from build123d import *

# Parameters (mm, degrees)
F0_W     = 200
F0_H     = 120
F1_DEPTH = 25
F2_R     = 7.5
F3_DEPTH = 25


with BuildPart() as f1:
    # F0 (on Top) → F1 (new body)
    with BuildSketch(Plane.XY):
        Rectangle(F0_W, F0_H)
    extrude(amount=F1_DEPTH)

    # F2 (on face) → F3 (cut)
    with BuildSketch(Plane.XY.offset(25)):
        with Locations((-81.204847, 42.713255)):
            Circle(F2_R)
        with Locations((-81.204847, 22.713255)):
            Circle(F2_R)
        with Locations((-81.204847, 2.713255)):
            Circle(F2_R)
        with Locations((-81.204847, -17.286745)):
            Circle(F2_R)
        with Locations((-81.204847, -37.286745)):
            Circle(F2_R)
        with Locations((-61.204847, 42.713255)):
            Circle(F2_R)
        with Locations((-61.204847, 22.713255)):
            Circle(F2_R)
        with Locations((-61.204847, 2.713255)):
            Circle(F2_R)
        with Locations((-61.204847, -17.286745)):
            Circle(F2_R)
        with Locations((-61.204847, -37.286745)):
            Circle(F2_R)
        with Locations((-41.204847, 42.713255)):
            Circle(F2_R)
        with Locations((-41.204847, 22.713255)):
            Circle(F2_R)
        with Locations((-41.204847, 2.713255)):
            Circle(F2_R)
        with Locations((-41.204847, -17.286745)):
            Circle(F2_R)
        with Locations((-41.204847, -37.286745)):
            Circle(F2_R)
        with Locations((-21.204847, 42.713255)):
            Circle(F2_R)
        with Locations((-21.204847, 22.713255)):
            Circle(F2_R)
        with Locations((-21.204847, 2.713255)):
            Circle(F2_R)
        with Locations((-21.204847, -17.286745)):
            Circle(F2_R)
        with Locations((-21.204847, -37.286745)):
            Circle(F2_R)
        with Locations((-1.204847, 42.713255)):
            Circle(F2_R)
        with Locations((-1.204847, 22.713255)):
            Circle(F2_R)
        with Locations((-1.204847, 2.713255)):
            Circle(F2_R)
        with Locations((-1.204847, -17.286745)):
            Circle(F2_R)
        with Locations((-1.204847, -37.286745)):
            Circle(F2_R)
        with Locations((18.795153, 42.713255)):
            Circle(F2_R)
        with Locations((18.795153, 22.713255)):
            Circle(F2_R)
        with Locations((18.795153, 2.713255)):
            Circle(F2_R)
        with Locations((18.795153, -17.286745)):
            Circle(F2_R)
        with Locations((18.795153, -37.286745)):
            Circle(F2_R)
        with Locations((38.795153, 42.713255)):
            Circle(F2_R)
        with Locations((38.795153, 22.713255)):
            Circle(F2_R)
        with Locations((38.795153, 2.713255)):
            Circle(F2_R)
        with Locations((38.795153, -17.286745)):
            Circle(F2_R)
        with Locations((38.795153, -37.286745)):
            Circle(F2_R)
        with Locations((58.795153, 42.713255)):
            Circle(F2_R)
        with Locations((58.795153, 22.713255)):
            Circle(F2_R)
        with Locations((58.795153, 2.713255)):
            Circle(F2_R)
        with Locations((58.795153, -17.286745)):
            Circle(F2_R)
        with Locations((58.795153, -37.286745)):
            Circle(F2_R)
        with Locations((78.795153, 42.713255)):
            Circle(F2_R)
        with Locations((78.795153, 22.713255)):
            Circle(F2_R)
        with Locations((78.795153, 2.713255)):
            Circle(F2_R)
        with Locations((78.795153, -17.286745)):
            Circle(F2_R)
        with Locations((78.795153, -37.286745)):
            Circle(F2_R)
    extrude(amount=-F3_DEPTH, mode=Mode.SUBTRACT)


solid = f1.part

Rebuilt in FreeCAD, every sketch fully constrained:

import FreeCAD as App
import Part
import Sketcher
from FreeCAD import Vector


def add_polygon(sketch, points):
    """Adds a closed chain of lines whose ends are joined by coincident constraints."""
    first, n = sketch.GeometryCount, len(points)
    for a, b in zip(points, points[1:] + points[:1]):
        sketch.addGeometry(Part.LineSegment(App.Vector(*a, 0), App.Vector(*b, 0)), False)
    for i in range(n):
        sketch.addConstraint(Sketcher.Constraint("Coincident", first + i, 2, first + (i + 1) % n, 1))

doc = App.newDocument("Part")
body = doc.addObject("PartDesign::Body", "Body")

# Sketch on XY plane
sketch1 = body.newObject("Sketcher::SketchObject", "Sketch")
sketch1.AttachmentSupport = (doc.getObject("XY_Plane"), [""])
sketch1.MapMode = "FlatFace"
add_polygon(sketch1, [(-100, 60), (-100, -60), (100, -60), (100, 60)])  # lines 0-3
sketch1.addConstraint([
    Sketcher.Constraint("Vertical", 0),
    Sketcher.Constraint("Horizontal", 1),
    Sketcher.Constraint("Vertical", 2),
    Sketcher.Constraint("Horizontal", 3),
    Sketcher.Constraint("Symmetric", 0, 2, 2, 2, -1, 1),
    Sketcher.Constraint("DistanceX", 1, 1, 1, 2, 200.0),
    Sketcher.Constraint("DistanceY", 0, 2, 0, 1, 120.0),
])
pad1 = body.newObject("PartDesign::Pad", "Pad")
pad1.Profile = sketch1
pad1.Length = 25

# Sketch on XY plane
sketch2 = body.newObject("Sketcher::SketchObject", "Sketch001")
sketch2.AttachmentSupport = (doc.getObject("XY_Plane"), [""])
sketch2.MapMode = "FlatFace"
sketch2.AttachmentOffset = App.Placement(Vector(0, 0, 25), App.Rotation())
sketch2.addGeometry([
    Part.Circle(Vector(-81, 43, 0), Vector(0, 0, 1), 8),  # 0
    Part.Circle(Vector(-81, 23, 0), Vector(0, 0, 1), 8),  # 1
    Part.Circle(Vector(-81, 3, 0), Vector(0, 0, 1), 8),  # 2
    Part.Circle(Vector(-81, -17, 0), Vector(0, 0, 1), 8),  # 3
    Part.Circle(Vector(-81, -37, 0), Vector(0, 0, 1), 8),  # 4
    Part.Circle(Vector(-61, 43, 0), Vector(0, 0, 1), 8),  # 5
    Part.Circle(Vector(-61, 23, 0), Vector(0, 0, 1), 8),  # 6
    Part.Circle(Vector(-61, 3, 0), Vector(0, 0, 1), 8),  # 7
    Part.Circle(Vector(-61, -17, 0), Vector(0, 0, 1), 8),  # 8
    Part.Circle(Vector(-61, -37, 0), Vector(0, 0, 1), 8),  # 9
    Part.Circle(Vector(-41, 43, 0), Vector(0, 0, 1), 8),  # 10
    Part.Circle(Vector(-41, 23, 0), Vector(0, 0, 1), 8),  # 11
    Part.Circle(Vector(-41, 3, 0), Vector(0, 0, 1), 8),  # 12
    Part.Circle(Vector(-41, -17, 0), Vector(0, 0, 1), 8),  # 13
    Part.Circle(Vector(-41, -37, 0), Vector(0, 0, 1), 8),  # 14
    Part.Circle(Vector(-21, 43, 0), Vector(0, 0, 1), 8),  # 15
    Part.Circle(Vector(-21, 23, 0), Vector(0, 0, 1), 8),  # 16
    Part.Circle(Vector(-21, 3, 0), Vector(0, 0, 1), 8),  # 17
    Part.Circle(Vector(-21, -17, 0), Vector(0, 0, 1), 8),  # 18
    Part.Circle(Vector(-21, -37, 0), Vector(0, 0, 1), 8),  # 19
    Part.Circle(Vector(-1, 43, 0), Vector(0, 0, 1), 8),  # 20
    Part.Circle(Vector(-1, 23, 0), Vector(0, 0, 1), 8),  # 21
    Part.Circle(Vector(-1, 3, 0), Vector(0, 0, 1), 8),  # 22
    Part.Circle(Vector(-1, -17, 0), Vector(0, 0, 1), 8),  # 23
    Part.Circle(Vector(-1, -37, 0), Vector(0, 0, 1), 8),  # 24
    Part.Circle(Vector(19, 43, 0), Vector(0, 0, 1), 8),  # 25
    Part.Circle(Vector(19, 23, 0), Vector(0, 0, 1), 8),  # 26
    Part.Circle(Vector(19, 3, 0), Vector(0, 0, 1), 8),  # 27
    Part.Circle(Vector(19, -17, 0), Vector(0, 0, 1), 8),  # 28
    Part.Circle(Vector(19, -37, 0), Vector(0, 0, 1), 8),  # 29
    Part.Circle(Vector(39, 43, 0), Vector(0, 0, 1), 8),  # 30
    Part.Circle(Vector(39, 23, 0), Vector(0, 0, 1), 8),  # 31
    Part.Circle(Vector(39, 3, 0), Vector(0, 0, 1), 8),  # 32
    Part.Circle(Vector(39, -17, 0), Vector(0, 0, 1), 8),  # 33
    Part.Circle(Vector(39, -37, 0), Vector(0, 0, 1), 8),  # 34
    Part.Circle(Vector(59, 43, 0), Vector(0, 0, 1), 8),  # 35
    Part.Circle(Vector(59, 23, 0), Vector(0, 0, 1), 8),  # 36
    Part.Circle(Vector(59, 3, 0), Vector(0, 0, 1), 8),  # 37
    Part.Circle(Vector(59, -17, 0), Vector(0, 0, 1), 8),  # 38
    Part.Circle(Vector(59, -37, 0), Vector(0, 0, 1), 8),  # 39
    Part.Circle(Vector(79, 43, 0), Vector(0, 0, 1), 8),  # 40
    Part.Circle(Vector(79, 23, 0), Vector(0, 0, 1), 8),  # 41
    Part.Circle(Vector(79, 3, 0), Vector(0, 0, 1), 8),  # 42
    Part.Circle(Vector(79, -17, 0), Vector(0, 0, 1), 8),  # 43
    Part.Circle(Vector(79, -37, 0), Vector(0, 0, 1), 8),  # 44
], False)
sketch2.addConstraint([
    Sketcher.Constraint("Equal", 0, 1),
    Sketcher.Constraint("Equal", 1, 2),
    Sketcher.Constraint("Equal", 2, 3),
    Sketcher.Constraint("Equal", 3, 4),
    Sketcher.Constraint("Equal", 4, 5),
    Sketcher.Constraint("Equal", 5, 6),
    Sketcher.Constraint("Equal", 6, 7),
    Sketcher.Constraint("Equal", 7, 8),
    Sketcher.Constraint("Equal", 8, 9),
    Sketcher.Constraint("Equal", 9, 10),
    Sketcher.Constraint("Equal", 10, 11),
    Sketcher.Constraint("Equal", 11, 12),
    Sketcher.Constraint("Equal", 12, 13),
    Sketcher.Constraint("Equal", 13, 14),
    Sketcher.Constraint("Equal", 14, 15),
    Sketcher.Constraint("Equal", 15, 16),
    Sketcher.Constraint("Equal", 16, 17),
    Sketcher.Constraint("Equal", 17, 18),
    Sketcher.Constraint("Equal", 18, 19),
    Sketcher.Constraint("Equal", 19, 20),
    Sketcher.Constraint("Equal", 20, 21),
    Sketcher.Constraint("Equal", 21, 22),
    Sketcher.Constraint("Equal", 22, 23),
    Sketcher.Constraint("Equal", 23, 24),
    Sketcher.Constraint("Equal", 24, 25),
    Sketcher.Constraint("Equal", 25, 26),
    Sketcher.Constraint("Equal", 26, 27),
    Sketcher.Constraint("Equal", 27, 28),
    Sketcher.Constraint("Equal", 28, 29),
    Sketcher.Constraint("Equal", 29, 30),
    Sketcher.Constraint("Equal", 30, 31),
    Sketcher.Constraint("Equal", 31, 32),
    Sketcher.Constraint("Equal", 32, 33),
    Sketcher.Constraint("Equal", 33, 34),
    Sketcher.Constraint("Equal", 34, 35),
    Sketcher.Constraint("Equal", 35, 36),
    Sketcher.Constraint("Equal", 36, 37),
    Sketcher.Constraint("Equal", 37, 38),
    Sketcher.Constraint("Equal", 38, 39),
    Sketcher.Constraint("Equal", 39, 40),
    Sketcher.Constraint("Equal", 40, 41),
    Sketcher.Constraint("Equal", 41, 42),
    Sketcher.Constraint("Equal", 42, 43),
    Sketcher.Constraint("Equal", 43, 44),
    Sketcher.Constraint("Horizontal", 0, 3, 5, 3),
    Sketcher.Constraint("Horizontal", 1, 3, 6, 3),
    Sketcher.Constraint("Horizontal", 2, 3, 7, 3),
    Sketcher.Constraint("Horizontal", 3, 3, 8, 3),
    Sketcher.Constraint("Horizontal", 4, 3, 9, 3),
    Sketcher.Constraint("Horizontal", 5, 3, 10, 3),
    Sketcher.Constraint("Horizontal", 6, 3, 11, 3),
    Sketcher.Constraint("Horizontal", 7, 3, 12, 3),
    Sketcher.Constraint("Horizontal", 8, 3, 13, 3),
    Sketcher.Constraint("Horizontal", 9, 3, 14, 3),
    Sketcher.Constraint("Horizontal", 10, 3, 15, 3),
    Sketcher.Constraint("Horizontal", 11, 3, 16, 3),
    Sketcher.Constraint("Horizontal", 12, 3, 17, 3),
    Sketcher.Constraint("Horizontal", 13, 3, 18, 3),
    Sketcher.Constraint("Horizontal", 14, 3, 19, 3),
    Sketcher.Constraint("Horizontal", 15, 3, 20, 3),
    Sketcher.Constraint("Horizontal", 16, 3, 21, 3),
    Sketcher.Constraint("Horizontal", 17, 3, 22, 3),
    Sketcher.Constraint("Horizontal", 18, 3, 23, 3),
    Sketcher.Constraint("Horizontal", 19, 3, 24, 3),
    Sketcher.Constraint("Horizontal", 20, 3, 25, 3),
    Sketcher.Constraint("Horizontal", 21, 3, 26, 3),
    Sketcher.Constraint("Horizontal", 22, 3, 27, 3),
    Sketcher.Constraint("Horizontal", 23, 3, 28, 3),
    Sketcher.Constraint("Horizontal", 24, 3, 29, 3),
    Sketcher.Constraint("Horizontal", 25, 3, 30, 3),
    Sketcher.Constraint("Horizontal", 26, 3, 31, 3),
    Sketcher.Constraint("Horizontal", 27, 3, 32, 3),
    Sketcher.Constraint("Horizontal", 28, 3, 33, 3),
    Sketcher.Constraint("Horizontal", 29, 3, 34, 3),
    Sketcher.Constraint("Horizontal", 30, 3, 35, 3),
    Sketcher.Constraint("Horizontal", 31, 3, 36, 3),
    Sketcher.Constraint("Horizontal", 32, 3, 37, 3),
    Sketcher.Constraint("Horizontal", 33, 3, 38, 3),
    Sketcher.Constraint("Horizontal", 34, 3, 39, 3),
    Sketcher.Constraint("Horizontal", 35, 3, 40, 3),
    Sketcher.Constraint("Horizontal", 36, 3, 41, 3),
    Sketcher.Constraint("Horizontal", 37, 3, 42, 3),
    Sketcher.Constraint("Horizontal", 38, 3, 43, 3),
    Sketcher.Constraint("Horizontal", 39, 3, 44, 3),
    Sketcher.Constraint("Vertical", 0, 3, 1, 3),
    Sketcher.Constraint("Vertical", 1, 3, 2, 3),
    Sketcher.Constraint("Vertical", 2, 3, 3, 3),
    Sketcher.Constraint("Vertical", 3, 3, 4, 3),
    Sketcher.Constraint("Vertical", 5, 3, 6, 3),
    Sketcher.Constraint("Vertical", 6, 3, 7, 3),
    Sketcher.Constraint("Vertical", 7, 3, 8, 3),
    Sketcher.Constraint("Vertical", 8, 3, 9, 3),
    Sketcher.Constraint("Vertical", 10, 3, 11, 3),
    Sketcher.Constraint("Vertical", 11, 3, 12, 3),
    Sketcher.Constraint("Vertical", 12, 3, 13, 3),
    Sketcher.Constraint("Vertical", 13, 3, 14, 3),
    Sketcher.Constraint("Vertical", 15, 3, 16, 3),
    Sketcher.Constraint("Vertical", 16, 3, 17, 3),
    Sketcher.Constraint("Vertical", 17, 3, 18, 3),
    Sketcher.Constraint("Vertical", 18, 3, 19, 3),
    Sketcher.Constraint("Vertical", 20, 3, 21, 3),
    Sketcher.Constraint("Vertical", 21, 3, 22, 3),
    Sketcher.Constraint("Vertical", 22, 3, 23, 3),
    Sketcher.Constraint("Vertical", 23, 3, 24, 3),
    Sketcher.Constraint("Vertical", 25, 3, 26, 3),
    Sketcher.Constraint("Vertical", 26, 3, 27, 3),
    Sketcher.Constraint("Vertical", 27, 3, 28, 3),
    Sketcher.Constraint("Vertical", 28, 3, 29, 3),
    Sketcher.Constraint("Vertical", 30, 3, 31, 3),
    Sketcher.Constraint("Vertical", 31, 3, 32, 3),
    Sketcher.Constraint("Vertical", 32, 3, 33, 3),
    Sketcher.Constraint("Vertical", 33, 3, 34, 3),
    Sketcher.Constraint("Vertical", 35, 3, 36, 3),
    Sketcher.Constraint("Vertical", 36, 3, 37, 3),
    Sketcher.Constraint("Vertical", 37, 3, 38, 3),
    Sketcher.Constraint("Vertical", 38, 3, 39, 3),
    Sketcher.Constraint("Vertical", 40, 3, 41, 3),
    Sketcher.Constraint("Vertical", 41, 3, 42, 3),
    Sketcher.Constraint("Vertical", 42, 3, 43, 3),
    Sketcher.Constraint("Vertical", 43, 3, 44, 3),
    Sketcher.Constraint("Diameter", 0, 15.0),
    Sketcher.Constraint("DistanceY", 1, 3, 0, 3, 20.0),
    Sketcher.Constraint("DistanceY", 2, 3, 1, 3, 20.0),
    Sketcher.Constraint("DistanceY", 3, 3, 2, 3, 20.0),
    Sketcher.Constraint("DistanceY", 4, 3, 3, 3, 20.0),
    Sketcher.Constraint("DistanceX", 0, 3, 5, 3, 20.0),
    Sketcher.Constraint("DistanceX", 5, 3, 10, 3, 20.0),
    Sketcher.Constraint("DistanceX", 10, 3, 15, 3, 20.0),
    Sketcher.Constraint("DistanceX", 15, 3, 20, 3, 20.0),
    Sketcher.Constraint("DistanceX", 20, 3, 25, 3, 20.0),
    Sketcher.Constraint("DistanceX", 25, 3, 30, 3, 20.0),
    Sketcher.Constraint("DistanceX", 30, 3, 35, 3, 20.0),
    Sketcher.Constraint("DistanceX", 35, 3, 40, 3, 20.0),
    Sketcher.Constraint("DistanceX", 0, 3, -1, 1, 81.204847),
    Sketcher.Constraint("DistanceY", -1, 1, 0, 3, 42.713255),
])
pocket1 = body.newObject("PartDesign::Pocket", "Pocket")
pocket1.Profile = sketch2
pocket1.Length = 25

doc.recompute()
